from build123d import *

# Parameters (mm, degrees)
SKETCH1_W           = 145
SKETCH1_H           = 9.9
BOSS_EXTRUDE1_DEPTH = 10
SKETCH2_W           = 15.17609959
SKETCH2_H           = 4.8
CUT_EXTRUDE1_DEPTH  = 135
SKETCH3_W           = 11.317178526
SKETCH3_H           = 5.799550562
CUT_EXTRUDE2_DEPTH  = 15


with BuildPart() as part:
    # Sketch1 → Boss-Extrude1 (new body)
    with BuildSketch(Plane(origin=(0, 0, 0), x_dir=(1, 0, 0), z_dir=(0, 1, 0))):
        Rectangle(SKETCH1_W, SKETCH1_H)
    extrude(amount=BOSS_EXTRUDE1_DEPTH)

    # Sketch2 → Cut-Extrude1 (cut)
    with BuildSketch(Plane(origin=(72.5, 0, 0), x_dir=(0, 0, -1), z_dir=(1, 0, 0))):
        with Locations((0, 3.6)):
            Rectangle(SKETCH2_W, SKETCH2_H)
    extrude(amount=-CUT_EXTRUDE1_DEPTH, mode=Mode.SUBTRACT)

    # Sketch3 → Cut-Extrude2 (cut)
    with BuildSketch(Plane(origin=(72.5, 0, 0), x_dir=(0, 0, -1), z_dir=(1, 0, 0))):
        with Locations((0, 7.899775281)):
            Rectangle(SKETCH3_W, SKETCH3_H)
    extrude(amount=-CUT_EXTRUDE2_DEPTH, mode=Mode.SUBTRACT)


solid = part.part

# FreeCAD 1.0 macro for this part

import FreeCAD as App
import Part
import Sketcher
Q = App.Units.Quantity

doc = App.newDocument("Part")
params = doc.addObject("Spreadsheet::Sheet", "Params")
for row, (alias, value) in enumerate([
    ("sketch1_width", "145 mm"),
    ("sketch1_height", "9.9 mm"),
    ("pad1_length", "10 mm"),
    ("sketch2_width", "4.8 mm"),
    ("pocket1_length", "135 mm"),
    ("pocket2_length", "15 mm"),
], start=1):
    params.set(f"A{row}", alias)
    params.set(f"B{row}", "=" + value)
    params.setAlias(f"B{row}", alias)

body = doc.addObject("PartDesign::Body", "Body")

sketch1 = body.newObject("Sketcher::SketchObject", "Sketch")
sketch1.AttachmentSupport = (doc.getObject("XZ_Plane"), [""])
sketch1.MapMode = "FlatFace"
sketch1.addGeometry(Part.LineSegment(App.Vector(-72, -5, 0), App.Vector(-72, 5, 0)), False)
sketch1.addGeometry(Part.LineSegment(App.Vector(-72, 5, 0), App.Vector(72, 5, 0)), False)
sketch1.addGeometry(Part.LineSegment(App.Vector(72, 5, 0), App.Vector(72, -5, 0)), False)
sketch1.addGeometry(Part.LineSegment(App.Vector(72, -5, 0), App.Vector(-72, -5, 0)), False)
sketch1.addConstraint(Sketcher.Constraint("Coincident", 0, 2, 1, 1))
sketch1.addConstraint(Sketcher.Constraint("Coincident", 1, 2, 2, 1))
sketch1.addConstraint(Sketcher.Constraint("Coincident", 2, 2, 3, 1))
sketch1.addConstraint(Sketcher.Constraint("Coincident", 3, 2, 0, 1))
sketch1.addConstraint(Sketcher.Constraint("Vertical", 0))
sketch1.addConstraint(Sketcher.Constraint("Horizontal", 1))
sketch1.addConstraint(Sketcher.Constraint("Vertical", 2))
sketch1.addConstraint(Sketcher.Constraint("Horizontal", 3))
sketch1.addConstraint(Sketcher.Constraint("Symmetric", 0, 2, 2, 2, -1, 1))
sketch1.addConstraint(Sketcher.Constraint("DistanceX", 1, 1, 1, 2, Q("145 mm")))
sketch1.addConstraint(Sketcher.Constraint("DistanceY", 0, 1, 0, 2, Q("9.9 mm")))
sketch1.setExpression("Constraints[9]", "Params.sketch1_width")
sketch1.setExpression("Constraints[10]", "Params.sketch1_height")
pad1 = body.newObject("PartDesign::Pad", "Pad")
pad1.Profile = sketch1
pad1.setExpression("Length", "Params.pad1_length")
pad1.Reversed = True

sketch2 = body.newObject("Sketcher::SketchObject", "Sketch001")
sketch2.AttachmentSupport = (doc.getObject("YZ_Plane"), [""])
sketch2.MapMode = "FlatFace"
sketch2.AttachmentOffset = App.Placement(App.Vector(0, 0, 72.5), App.Rotation())
sketch2.addGeometry(Part.LineSegment(App.Vector(6, 7.6, 0), App.Vector(1.2, 7.6, 0)), False)
sketch2.addGeometry(Part.LineSegment(App.Vector(1.2, 7.6, 0), App.Vector(1.2, -7.6, 0)), False)
sketch2.addGeometry(Part.LineSegment(App.Vector(1.2, -7.6, 0), App.Vector(6, -7.6, 0)), False)
sketch2.addGeometry(Part.LineSegment(App.Vector(6, -7.6, 0), App.Vector(6, 7.6, 0)), False)
sketch2.addConstraint(Sketcher.Constraint("Coincident", 0, 2, 1, 1))
sketch2.addConstraint(Sketcher.Constraint("Coincident", 1, 2, 2, 1))
sketch2.addConstraint(Sketcher.Constraint("Coincident", 2, 2, 3, 1))
sketch2.addConstraint(Sketcher.Constraint("Coincident", 3, 2, 0, 1))
sketch2.addConstraint(Sketcher.Constraint("Horizontal", 0))
sketch2.addConstraint(Sketcher.Constraint("Vertical", 1))
sketch2.addConstraint(Sketcher.Constraint("Horizontal", 2))
sketch2.addConstraint(Sketcher.Constraint("Vertical", 3))
sketch2.addConstraint(Sketcher.Constraint("DistanceX", 0, 2, 0, 1, Q("4.8 mm")))
sketch2.addConstraint(Sketcher.Constraint("DistanceX", -1, 1, 2, 2, Q("6 mm")))
sketch2.addConstraint(Sketcher.Constraint("DistanceY", 1, 2, 1, 1, Q("15.1761 mm")))
sketch2.addConstraint(Sketcher.Constraint("DistanceY", -1, 1, 0, 2, Q("7.58805 mm")))
sketch2.setExpression("Constraints[8]", "Params.sketch2_width")
pocket1 = body.newObject("PartDesign::Pocket", "Pocket")
pocket1.Profile = sketch2
pocket1.setExpression("Length", "Params.pocket1_length")

sketch3 = body.newObject("Sketcher::SketchObject", "Sketch002")
sketch3.AttachmentSupport = (doc.getObject("YZ_Plane"), [""])
sketch3.MapMode = "FlatFace"
sketch3.AttachmentOffset = App.Placement(App.Vector(0, 0, 72.5), App.Rotation())
sketch3.addGeometry(Part.LineSegment(App.Vector(11, 6, 0), App.Vector(5, 6, 0)), False)
sketch3.addGeometry(Part.LineSegment(App.Vector(5, 6, 0), App.Vector(5, -6, 0)), False)
sketch3.addGeometry(Part.LineSegment(App.Vector(5, -6, 0), App.Vector(11, -6, 0)), False)
sketch3.addGeometry(Part.LineSegment(App.Vector(11, -6, 0), App.Vector(11, 6, 0)), False)
sketch3.addConstraint(Sketcher.Constraint("Coincident", 0, 2, 1, 1))
sketch3.addConstraint(Sketcher.Constraint("Coincident", 1, 2, 2, 1))
sketch3.addConstraint(Sketcher.Constraint("Coincident", 2, 2, 3, 1))
sketch3.addConstraint(Sketcher.Constraint("Coincident", 3, 2, 0, 1))
sketch3.addConstraint(Sketcher.Constraint("Horizontal", 0))
sketch3.addConstraint(Sketcher.Constraint("Vertical", 1))
sketch3.addConstraint(Sketcher.Constraint("Horizontal", 2))
sketch3.addConstraint(Sketcher.Constraint("Vertical", 3))
sketch3.addConstraint(Sketcher.Constraint("DistanceX", -1, 1, 0, 2, Q("5 mm")))
sketch3.addConstraint(Sketcher.Constraint("DistanceX", 0, 2, 0, 1, Q("5.799551 mm")))
sketch3.addConstraint(Sketcher.Constraint("DistanceY", 1, 2, 1, 1, Q("11.317179 mm")))
sketch3.addConstraint(Sketcher.Constraint("DistanceY", -1, 1, 0, 2, Q("5.658589 mm")))
pocket2 = body.newObject("PartDesign::Pocket", "Pocket001")
pocket2.Profile = sketch3
pocket2.setExpression("Length", "Params.pocket2_length")

doc.recompute()
